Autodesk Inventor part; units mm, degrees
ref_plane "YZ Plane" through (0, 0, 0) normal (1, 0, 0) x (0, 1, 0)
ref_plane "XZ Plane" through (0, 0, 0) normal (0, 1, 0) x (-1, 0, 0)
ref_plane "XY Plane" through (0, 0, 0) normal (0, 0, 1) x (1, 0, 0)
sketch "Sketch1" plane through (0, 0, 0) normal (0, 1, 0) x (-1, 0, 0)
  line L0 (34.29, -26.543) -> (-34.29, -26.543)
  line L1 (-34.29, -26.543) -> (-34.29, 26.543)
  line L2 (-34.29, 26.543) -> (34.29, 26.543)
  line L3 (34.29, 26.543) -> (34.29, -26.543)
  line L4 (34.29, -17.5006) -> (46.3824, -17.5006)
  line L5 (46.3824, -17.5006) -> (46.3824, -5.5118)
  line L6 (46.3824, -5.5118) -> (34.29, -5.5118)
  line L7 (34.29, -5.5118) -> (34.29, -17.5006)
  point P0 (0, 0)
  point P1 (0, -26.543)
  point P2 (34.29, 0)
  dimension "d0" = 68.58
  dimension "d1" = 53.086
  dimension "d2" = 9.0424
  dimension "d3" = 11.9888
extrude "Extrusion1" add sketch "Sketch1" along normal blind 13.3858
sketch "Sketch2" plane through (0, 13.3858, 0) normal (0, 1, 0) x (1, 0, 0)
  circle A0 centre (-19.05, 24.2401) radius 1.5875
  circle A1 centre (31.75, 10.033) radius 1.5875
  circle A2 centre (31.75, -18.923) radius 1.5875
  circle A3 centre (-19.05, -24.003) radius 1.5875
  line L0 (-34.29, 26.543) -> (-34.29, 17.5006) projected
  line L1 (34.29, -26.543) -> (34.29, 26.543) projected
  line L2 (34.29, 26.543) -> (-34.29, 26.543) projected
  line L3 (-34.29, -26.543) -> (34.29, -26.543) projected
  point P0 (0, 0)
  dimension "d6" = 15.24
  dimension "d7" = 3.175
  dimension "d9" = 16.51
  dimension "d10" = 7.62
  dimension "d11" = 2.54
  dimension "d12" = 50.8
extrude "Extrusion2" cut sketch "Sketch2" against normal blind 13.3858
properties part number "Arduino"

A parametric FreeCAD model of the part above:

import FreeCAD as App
import Part
import Sketcher

V = App.Vector
Q = App.Units.Quantity


def add_polygon(sketch, points):
    """Adds a closed chain of lines whose ends are joined by coincident constraints."""
    first, n = sketch.GeometryCount, len(points)
    for a, b in zip(points, points[1:] + points[:1]):
        sketch.addGeometry(Part.LineSegment(App.Vector(*a, 0), App.Vector(*b, 0)), False)
    for i in range(n):
        sketch.addConstraint(Sketcher.Constraint("Coincident", first + i, 2, first + (i + 1) % n, 1))

doc = App.newDocument("Part")
body = doc.addObject("PartDesign::Body", "Body")

# Sketch on XZ plane
sketch1 = body.newObject("Sketcher::SketchObject", "Sketch")
sketch1.AttachmentSupport = (doc.getObject("XZ_Plane"), [""])
sketch1.MapMode = "FlatFace"
add_polygon(sketch1, [(34, -27), (-34, -27), (-34, -18), (-46, -18), (-46, -6), (-34, -6), (-34, 27), (34, 27)])  # lines 0-7
sketch1.addConstraint(Sketcher.Constraint("Horizontal", 0))
sketch1.addConstraint(Sketcher.Constraint("Vertical", 1))
sketch1.addConstraint(Sketcher.Constraint("Horizontal", 2))
sketch1.addConstraint(Sketcher.Constraint("Vertical", 3))
sketch1.addConstraint(Sketcher.Constraint("Horizontal", 4))
sketch1.addConstraint(Sketcher.Constraint("Vertical", 5))
sketch1.addConstraint(Sketcher.Constraint("Horizontal", 6))
sketch1.addConstraint(Sketcher.Constraint("Vertical", 7))
sketch1.addConstraint(Sketcher.Constraint("Symmetric", 0, 2, 6, 2, -1, 1))
sketch1.addConstraint(Sketcher.Constraint("Vertical", 1, 2, 4, 2))
sketch1.addConstraint(Sketcher.Constraint("DistanceX", 0, 2, 0, 1, Q("2.7 in")))
sketch1.addConstraint(Sketcher.Constraint("DistanceY", 7, 2, 7, 1, Q("2.09 in")))
sketch1.addConstraint(Sketcher.Constraint("DistanceY", 1, 1, 1, 2, Q("0.356 in")))
sketch1.addConstraint(Sketcher.Constraint("DistanceY", 3, 1, 3, 2, Q("0.472 in")))
sketch1.addConstraint(Sketcher.Constraint("DistanceX", 2, 2, 2, 1, 12.0924))
pad1 = body.newObject("PartDesign::Pad", "Pad")
pad1.Profile = sketch1
pad1.Length = Q("0.527 in")
pad1.Reversed = True

# Sketch on XZ plane
sketch2 = body.newObject("Sketcher::SketchObject", "Sketch001")
sketch2.AttachmentSupport = (doc.getObject("XZ_Plane"), [""])
sketch2.MapMode = "FlatFace"
sketch2.AttachmentOffset = App.Placement(V(0, 0, -0.527 * 25.4), App.Rotation())
sketch2.addGeometry(Part.Circle(V(-19.1, -24.2, 0), V(0, 0, 1), 1.6), False)
sketch2.addGeometry(Part.Circle(V(31.8, -10, 0), V(0, 0, 1), 1.6), False)
sketch2.addGeometry(Part.Circle(V(31.8, 18.9, 0), V(0, 0, 1), 1.6), False)
sketch2.addGeometry(Part.Circle(V(-19.1, 24, 0), V(0, 0, 1), 1.6), False)
sketch2.addConstraint(Sketcher.Constraint("Equal", 0, 1))
sketch2.addConstraint(Sketcher.Constraint("Equal", 1, 2))
sketch2.addConstraint(Sketcher.Constraint("Equal", 2, 3))
sketch2.addConstraint(Sketcher.Constraint("Vertical", 1, 3, 2, 3))
sketch2.addConstraint(Sketcher.Constraint("Vertical", 0, 3, 3, 3))
sketch2.addConstraint(Sketcher.Constraint("Diameter", 0, Q("0.125 in")))
sketch2.addConstraint(Sketcher.Constraint("DistanceX", 0, 3, 1, 3, Q("2 in")))
sketch2.addConstraint(Sketcher.Constraint("DistanceY", 2, 3, 3, 3, Q("0.2 in")))
sketch2.addConstraint(Sketcher.Constraint("DistanceX", 0, 3, -1, 1, Q("0.75 in")))
sketch2.addConstraint(Sketcher.Constraint("DistanceY", 1, 3, 2, 3, Q("1.14 in")))
sketch2.addConstraint(Sketcher.Constraint("DistanceY", 1, 3, -1, 1, Q("0.395 in")))
sketch2.addConstraint(Sketcher.Constraint("DistanceY", 0, 3, -1, 1, 24.24))
pocket1 = body.newObject("PartDesign::Pocket", "Pocket")
pocket1.Profile = sketch2
pocket1.Length = Q("0.527 in")
pocket1.Reversed = True

doc.recompute()
